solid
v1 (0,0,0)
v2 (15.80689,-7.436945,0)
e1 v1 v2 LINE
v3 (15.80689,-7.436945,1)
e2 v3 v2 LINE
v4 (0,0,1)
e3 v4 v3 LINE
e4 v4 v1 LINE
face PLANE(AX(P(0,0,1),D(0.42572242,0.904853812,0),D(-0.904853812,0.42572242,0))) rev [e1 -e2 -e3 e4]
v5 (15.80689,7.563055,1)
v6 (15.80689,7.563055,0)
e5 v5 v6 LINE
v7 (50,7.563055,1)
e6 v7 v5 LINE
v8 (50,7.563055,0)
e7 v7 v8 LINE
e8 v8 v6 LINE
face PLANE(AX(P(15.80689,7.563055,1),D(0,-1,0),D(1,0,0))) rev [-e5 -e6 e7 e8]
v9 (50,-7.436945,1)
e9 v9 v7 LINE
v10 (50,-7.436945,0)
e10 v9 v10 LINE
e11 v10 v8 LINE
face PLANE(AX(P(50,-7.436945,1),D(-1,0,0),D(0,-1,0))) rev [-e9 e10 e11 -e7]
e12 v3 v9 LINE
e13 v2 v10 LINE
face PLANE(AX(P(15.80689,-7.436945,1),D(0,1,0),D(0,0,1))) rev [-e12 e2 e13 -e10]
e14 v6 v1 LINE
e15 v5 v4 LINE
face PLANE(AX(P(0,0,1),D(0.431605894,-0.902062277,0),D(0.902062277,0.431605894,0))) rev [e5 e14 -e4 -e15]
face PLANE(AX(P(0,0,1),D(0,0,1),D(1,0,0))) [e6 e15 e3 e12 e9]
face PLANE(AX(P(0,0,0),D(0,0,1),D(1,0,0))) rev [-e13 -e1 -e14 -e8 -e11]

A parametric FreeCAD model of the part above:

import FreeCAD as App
import Part
import Sketcher

V = App.Vector


def add_polygon(sketch, points):
    """Adds a closed chain of lines whose ends are joined by coincident constraints."""
    first, n = sketch.GeometryCount, len(points)
    for a, b in zip(points, points[1:] + points[:1]):
        sketch.addGeometry(Part.LineSegment(App.Vector(*a, 0), App.Vector(*b, 0)), False)
    for i in range(n):
        sketch.addConstraint(Sketcher.Constraint("Coincident", first + i, 2, first + (i + 1) % n, 1))

doc = App.newDocument("Part")
params = doc.addObject("Spreadsheet::Sheet", "Params")
for row, (alias, value) in enumerate([
    ("sketch1_height", "15 mm"),
    ("pad1_length", "1 mm"),
], start=1):
    params.set(f"A{row}", alias)
    params.set(f"B{row}", "=" + value)
    params.setAlias(f"B{row}", alias)

body = doc.addObject("PartDesign::Body", "Body")

# Sketch on XY plane
sketch1 = body.newObject("Sketcher::SketchObject", "Sketch")
sketch1.AttachmentSupport = (doc.getObject("XY_Plane"), [""])
sketch1.MapMode = "FlatFace"
add_polygon(sketch1, [(15.80689, -7.436945), (50, -7.436945), (50, 7.563055), (15.80689, 7.563055), (0, 0)])  # lines 0-4
sketch1.addConstraint([
    Sketcher.Constraint("Horizontal", 0),
    Sketcher.Constraint("Vertical", 1),
    Sketcher.Constraint("Horizontal", 2),
    Sketcher.Constraint("Coincident", 3, 2, -1, 1),
    Sketcher.Constraint("Vertical", 2, 2, 4, 2),
    Sketcher.Constraint("DistanceY", 1, 1, 1, 2, 15.0),
    Sketcher.Constraint("DistanceX", -1, 1, 0, 2, 50.0),
    Sketcher.Constraint("Distance", 4, 17.468999),
    Sketcher.Constraint("DistanceX", 0, 1, 0, 2, 34.19311),
])
sketch1.setExpression("Constraints[10]", "Params.sketch1_height")
pad1 = body.newObject("PartDesign::Pad", "Pad")
pad1.Profile = sketch1
pad1.setExpression("Length", "Params.pad1_length")

doc.recompute()
